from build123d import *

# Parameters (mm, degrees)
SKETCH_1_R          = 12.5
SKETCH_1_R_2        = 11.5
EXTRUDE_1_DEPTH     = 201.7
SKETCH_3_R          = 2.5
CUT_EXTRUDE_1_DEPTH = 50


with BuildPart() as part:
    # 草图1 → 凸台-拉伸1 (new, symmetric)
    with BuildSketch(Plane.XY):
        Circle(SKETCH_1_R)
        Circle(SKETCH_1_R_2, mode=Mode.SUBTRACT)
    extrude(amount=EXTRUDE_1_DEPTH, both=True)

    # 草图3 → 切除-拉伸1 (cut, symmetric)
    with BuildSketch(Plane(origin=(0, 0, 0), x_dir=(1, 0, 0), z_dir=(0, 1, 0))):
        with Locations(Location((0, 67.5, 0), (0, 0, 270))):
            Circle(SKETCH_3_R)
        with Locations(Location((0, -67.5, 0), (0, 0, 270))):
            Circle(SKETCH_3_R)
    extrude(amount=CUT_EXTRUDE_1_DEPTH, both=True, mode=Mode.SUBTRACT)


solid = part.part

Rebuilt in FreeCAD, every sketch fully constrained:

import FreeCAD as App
import Part
import Sketcher
from FreeCAD import Vector

doc = App.newDocument("Part")
body = doc.addObject("PartDesign::Body", "Body")

# Sketch on XY plane
sketch1 = body.newObject("Sketcher::SketchObject", "Sketch")
sketch1.AttachmentSupport = (doc.getObject("XY_Plane"), [""])
sketch1.MapMode = "FlatFace"
sketch1.addGeometry(Part.Circle(Vector(0, 0, 0), Vector(0, 0, 1), 12), False)
sketch1.addGeometry(Part.Circle(Vector(0, 0, 0), Vector(0, 0, 1), 12), False)
sketch1.addConstraint(Sketcher.Constraint("Coincident", 0, 3, -1, 1))
sketch1.addConstraint(Sketcher.Constraint("Coincident", 1, 3, -1, 1))
sketch1.addConstraint(Sketcher.Constraint("Diameter", 0, 25.0))
sketch1.addConstraint(Sketcher.Constraint("Diameter", 1, 23.0))
pad1 = body.newObject("PartDesign::Pad", "Pad")
pad1.Profile = sketch1
pad1.Length = 403.4
pad1.Midplane = True

# Sketch on XZ plane
sketch2 = body.newObject("Sketcher::SketchObject", "Sketch001")
sketch2.AttachmentSupport = (doc.getObject("XZ_Plane"), [""])
sketch2.MapMode = "FlatFace"
sketch2.addGeometry(Part.Circle(Vector(0, -67.5, 0), Vector(0, 0, 1), 2.5), False)
sketch2.addGeometry(Part.Circle(Vector(0, 67.5, 0), Vector(0, 0, 1), 2.5), False)
sketch2.addConstraint(Sketcher.Constraint("Equal", 0, 1))
sketch2.addConstraint(Sketcher.Constraint("Symmetric", 0, 3, 1, 3, -1, 1))
sketch2.addConstraint(Sketcher.Constraint("PointOnObject", 0, 3, -2))
sketch2.addConstraint(Sketcher.Constraint("Diameter", 0, 5.0))
sketch2.addConstraint(Sketcher.Constraint("DistanceY", 0, 3, 1, 3, 135.0))
pocket1 = body.newObject("PartDesign::Pocket", "Pocket")
pocket1.Profile = sketch2
pocket1.Length = 100
pocket1.Midplane = True

doc.recompute()
